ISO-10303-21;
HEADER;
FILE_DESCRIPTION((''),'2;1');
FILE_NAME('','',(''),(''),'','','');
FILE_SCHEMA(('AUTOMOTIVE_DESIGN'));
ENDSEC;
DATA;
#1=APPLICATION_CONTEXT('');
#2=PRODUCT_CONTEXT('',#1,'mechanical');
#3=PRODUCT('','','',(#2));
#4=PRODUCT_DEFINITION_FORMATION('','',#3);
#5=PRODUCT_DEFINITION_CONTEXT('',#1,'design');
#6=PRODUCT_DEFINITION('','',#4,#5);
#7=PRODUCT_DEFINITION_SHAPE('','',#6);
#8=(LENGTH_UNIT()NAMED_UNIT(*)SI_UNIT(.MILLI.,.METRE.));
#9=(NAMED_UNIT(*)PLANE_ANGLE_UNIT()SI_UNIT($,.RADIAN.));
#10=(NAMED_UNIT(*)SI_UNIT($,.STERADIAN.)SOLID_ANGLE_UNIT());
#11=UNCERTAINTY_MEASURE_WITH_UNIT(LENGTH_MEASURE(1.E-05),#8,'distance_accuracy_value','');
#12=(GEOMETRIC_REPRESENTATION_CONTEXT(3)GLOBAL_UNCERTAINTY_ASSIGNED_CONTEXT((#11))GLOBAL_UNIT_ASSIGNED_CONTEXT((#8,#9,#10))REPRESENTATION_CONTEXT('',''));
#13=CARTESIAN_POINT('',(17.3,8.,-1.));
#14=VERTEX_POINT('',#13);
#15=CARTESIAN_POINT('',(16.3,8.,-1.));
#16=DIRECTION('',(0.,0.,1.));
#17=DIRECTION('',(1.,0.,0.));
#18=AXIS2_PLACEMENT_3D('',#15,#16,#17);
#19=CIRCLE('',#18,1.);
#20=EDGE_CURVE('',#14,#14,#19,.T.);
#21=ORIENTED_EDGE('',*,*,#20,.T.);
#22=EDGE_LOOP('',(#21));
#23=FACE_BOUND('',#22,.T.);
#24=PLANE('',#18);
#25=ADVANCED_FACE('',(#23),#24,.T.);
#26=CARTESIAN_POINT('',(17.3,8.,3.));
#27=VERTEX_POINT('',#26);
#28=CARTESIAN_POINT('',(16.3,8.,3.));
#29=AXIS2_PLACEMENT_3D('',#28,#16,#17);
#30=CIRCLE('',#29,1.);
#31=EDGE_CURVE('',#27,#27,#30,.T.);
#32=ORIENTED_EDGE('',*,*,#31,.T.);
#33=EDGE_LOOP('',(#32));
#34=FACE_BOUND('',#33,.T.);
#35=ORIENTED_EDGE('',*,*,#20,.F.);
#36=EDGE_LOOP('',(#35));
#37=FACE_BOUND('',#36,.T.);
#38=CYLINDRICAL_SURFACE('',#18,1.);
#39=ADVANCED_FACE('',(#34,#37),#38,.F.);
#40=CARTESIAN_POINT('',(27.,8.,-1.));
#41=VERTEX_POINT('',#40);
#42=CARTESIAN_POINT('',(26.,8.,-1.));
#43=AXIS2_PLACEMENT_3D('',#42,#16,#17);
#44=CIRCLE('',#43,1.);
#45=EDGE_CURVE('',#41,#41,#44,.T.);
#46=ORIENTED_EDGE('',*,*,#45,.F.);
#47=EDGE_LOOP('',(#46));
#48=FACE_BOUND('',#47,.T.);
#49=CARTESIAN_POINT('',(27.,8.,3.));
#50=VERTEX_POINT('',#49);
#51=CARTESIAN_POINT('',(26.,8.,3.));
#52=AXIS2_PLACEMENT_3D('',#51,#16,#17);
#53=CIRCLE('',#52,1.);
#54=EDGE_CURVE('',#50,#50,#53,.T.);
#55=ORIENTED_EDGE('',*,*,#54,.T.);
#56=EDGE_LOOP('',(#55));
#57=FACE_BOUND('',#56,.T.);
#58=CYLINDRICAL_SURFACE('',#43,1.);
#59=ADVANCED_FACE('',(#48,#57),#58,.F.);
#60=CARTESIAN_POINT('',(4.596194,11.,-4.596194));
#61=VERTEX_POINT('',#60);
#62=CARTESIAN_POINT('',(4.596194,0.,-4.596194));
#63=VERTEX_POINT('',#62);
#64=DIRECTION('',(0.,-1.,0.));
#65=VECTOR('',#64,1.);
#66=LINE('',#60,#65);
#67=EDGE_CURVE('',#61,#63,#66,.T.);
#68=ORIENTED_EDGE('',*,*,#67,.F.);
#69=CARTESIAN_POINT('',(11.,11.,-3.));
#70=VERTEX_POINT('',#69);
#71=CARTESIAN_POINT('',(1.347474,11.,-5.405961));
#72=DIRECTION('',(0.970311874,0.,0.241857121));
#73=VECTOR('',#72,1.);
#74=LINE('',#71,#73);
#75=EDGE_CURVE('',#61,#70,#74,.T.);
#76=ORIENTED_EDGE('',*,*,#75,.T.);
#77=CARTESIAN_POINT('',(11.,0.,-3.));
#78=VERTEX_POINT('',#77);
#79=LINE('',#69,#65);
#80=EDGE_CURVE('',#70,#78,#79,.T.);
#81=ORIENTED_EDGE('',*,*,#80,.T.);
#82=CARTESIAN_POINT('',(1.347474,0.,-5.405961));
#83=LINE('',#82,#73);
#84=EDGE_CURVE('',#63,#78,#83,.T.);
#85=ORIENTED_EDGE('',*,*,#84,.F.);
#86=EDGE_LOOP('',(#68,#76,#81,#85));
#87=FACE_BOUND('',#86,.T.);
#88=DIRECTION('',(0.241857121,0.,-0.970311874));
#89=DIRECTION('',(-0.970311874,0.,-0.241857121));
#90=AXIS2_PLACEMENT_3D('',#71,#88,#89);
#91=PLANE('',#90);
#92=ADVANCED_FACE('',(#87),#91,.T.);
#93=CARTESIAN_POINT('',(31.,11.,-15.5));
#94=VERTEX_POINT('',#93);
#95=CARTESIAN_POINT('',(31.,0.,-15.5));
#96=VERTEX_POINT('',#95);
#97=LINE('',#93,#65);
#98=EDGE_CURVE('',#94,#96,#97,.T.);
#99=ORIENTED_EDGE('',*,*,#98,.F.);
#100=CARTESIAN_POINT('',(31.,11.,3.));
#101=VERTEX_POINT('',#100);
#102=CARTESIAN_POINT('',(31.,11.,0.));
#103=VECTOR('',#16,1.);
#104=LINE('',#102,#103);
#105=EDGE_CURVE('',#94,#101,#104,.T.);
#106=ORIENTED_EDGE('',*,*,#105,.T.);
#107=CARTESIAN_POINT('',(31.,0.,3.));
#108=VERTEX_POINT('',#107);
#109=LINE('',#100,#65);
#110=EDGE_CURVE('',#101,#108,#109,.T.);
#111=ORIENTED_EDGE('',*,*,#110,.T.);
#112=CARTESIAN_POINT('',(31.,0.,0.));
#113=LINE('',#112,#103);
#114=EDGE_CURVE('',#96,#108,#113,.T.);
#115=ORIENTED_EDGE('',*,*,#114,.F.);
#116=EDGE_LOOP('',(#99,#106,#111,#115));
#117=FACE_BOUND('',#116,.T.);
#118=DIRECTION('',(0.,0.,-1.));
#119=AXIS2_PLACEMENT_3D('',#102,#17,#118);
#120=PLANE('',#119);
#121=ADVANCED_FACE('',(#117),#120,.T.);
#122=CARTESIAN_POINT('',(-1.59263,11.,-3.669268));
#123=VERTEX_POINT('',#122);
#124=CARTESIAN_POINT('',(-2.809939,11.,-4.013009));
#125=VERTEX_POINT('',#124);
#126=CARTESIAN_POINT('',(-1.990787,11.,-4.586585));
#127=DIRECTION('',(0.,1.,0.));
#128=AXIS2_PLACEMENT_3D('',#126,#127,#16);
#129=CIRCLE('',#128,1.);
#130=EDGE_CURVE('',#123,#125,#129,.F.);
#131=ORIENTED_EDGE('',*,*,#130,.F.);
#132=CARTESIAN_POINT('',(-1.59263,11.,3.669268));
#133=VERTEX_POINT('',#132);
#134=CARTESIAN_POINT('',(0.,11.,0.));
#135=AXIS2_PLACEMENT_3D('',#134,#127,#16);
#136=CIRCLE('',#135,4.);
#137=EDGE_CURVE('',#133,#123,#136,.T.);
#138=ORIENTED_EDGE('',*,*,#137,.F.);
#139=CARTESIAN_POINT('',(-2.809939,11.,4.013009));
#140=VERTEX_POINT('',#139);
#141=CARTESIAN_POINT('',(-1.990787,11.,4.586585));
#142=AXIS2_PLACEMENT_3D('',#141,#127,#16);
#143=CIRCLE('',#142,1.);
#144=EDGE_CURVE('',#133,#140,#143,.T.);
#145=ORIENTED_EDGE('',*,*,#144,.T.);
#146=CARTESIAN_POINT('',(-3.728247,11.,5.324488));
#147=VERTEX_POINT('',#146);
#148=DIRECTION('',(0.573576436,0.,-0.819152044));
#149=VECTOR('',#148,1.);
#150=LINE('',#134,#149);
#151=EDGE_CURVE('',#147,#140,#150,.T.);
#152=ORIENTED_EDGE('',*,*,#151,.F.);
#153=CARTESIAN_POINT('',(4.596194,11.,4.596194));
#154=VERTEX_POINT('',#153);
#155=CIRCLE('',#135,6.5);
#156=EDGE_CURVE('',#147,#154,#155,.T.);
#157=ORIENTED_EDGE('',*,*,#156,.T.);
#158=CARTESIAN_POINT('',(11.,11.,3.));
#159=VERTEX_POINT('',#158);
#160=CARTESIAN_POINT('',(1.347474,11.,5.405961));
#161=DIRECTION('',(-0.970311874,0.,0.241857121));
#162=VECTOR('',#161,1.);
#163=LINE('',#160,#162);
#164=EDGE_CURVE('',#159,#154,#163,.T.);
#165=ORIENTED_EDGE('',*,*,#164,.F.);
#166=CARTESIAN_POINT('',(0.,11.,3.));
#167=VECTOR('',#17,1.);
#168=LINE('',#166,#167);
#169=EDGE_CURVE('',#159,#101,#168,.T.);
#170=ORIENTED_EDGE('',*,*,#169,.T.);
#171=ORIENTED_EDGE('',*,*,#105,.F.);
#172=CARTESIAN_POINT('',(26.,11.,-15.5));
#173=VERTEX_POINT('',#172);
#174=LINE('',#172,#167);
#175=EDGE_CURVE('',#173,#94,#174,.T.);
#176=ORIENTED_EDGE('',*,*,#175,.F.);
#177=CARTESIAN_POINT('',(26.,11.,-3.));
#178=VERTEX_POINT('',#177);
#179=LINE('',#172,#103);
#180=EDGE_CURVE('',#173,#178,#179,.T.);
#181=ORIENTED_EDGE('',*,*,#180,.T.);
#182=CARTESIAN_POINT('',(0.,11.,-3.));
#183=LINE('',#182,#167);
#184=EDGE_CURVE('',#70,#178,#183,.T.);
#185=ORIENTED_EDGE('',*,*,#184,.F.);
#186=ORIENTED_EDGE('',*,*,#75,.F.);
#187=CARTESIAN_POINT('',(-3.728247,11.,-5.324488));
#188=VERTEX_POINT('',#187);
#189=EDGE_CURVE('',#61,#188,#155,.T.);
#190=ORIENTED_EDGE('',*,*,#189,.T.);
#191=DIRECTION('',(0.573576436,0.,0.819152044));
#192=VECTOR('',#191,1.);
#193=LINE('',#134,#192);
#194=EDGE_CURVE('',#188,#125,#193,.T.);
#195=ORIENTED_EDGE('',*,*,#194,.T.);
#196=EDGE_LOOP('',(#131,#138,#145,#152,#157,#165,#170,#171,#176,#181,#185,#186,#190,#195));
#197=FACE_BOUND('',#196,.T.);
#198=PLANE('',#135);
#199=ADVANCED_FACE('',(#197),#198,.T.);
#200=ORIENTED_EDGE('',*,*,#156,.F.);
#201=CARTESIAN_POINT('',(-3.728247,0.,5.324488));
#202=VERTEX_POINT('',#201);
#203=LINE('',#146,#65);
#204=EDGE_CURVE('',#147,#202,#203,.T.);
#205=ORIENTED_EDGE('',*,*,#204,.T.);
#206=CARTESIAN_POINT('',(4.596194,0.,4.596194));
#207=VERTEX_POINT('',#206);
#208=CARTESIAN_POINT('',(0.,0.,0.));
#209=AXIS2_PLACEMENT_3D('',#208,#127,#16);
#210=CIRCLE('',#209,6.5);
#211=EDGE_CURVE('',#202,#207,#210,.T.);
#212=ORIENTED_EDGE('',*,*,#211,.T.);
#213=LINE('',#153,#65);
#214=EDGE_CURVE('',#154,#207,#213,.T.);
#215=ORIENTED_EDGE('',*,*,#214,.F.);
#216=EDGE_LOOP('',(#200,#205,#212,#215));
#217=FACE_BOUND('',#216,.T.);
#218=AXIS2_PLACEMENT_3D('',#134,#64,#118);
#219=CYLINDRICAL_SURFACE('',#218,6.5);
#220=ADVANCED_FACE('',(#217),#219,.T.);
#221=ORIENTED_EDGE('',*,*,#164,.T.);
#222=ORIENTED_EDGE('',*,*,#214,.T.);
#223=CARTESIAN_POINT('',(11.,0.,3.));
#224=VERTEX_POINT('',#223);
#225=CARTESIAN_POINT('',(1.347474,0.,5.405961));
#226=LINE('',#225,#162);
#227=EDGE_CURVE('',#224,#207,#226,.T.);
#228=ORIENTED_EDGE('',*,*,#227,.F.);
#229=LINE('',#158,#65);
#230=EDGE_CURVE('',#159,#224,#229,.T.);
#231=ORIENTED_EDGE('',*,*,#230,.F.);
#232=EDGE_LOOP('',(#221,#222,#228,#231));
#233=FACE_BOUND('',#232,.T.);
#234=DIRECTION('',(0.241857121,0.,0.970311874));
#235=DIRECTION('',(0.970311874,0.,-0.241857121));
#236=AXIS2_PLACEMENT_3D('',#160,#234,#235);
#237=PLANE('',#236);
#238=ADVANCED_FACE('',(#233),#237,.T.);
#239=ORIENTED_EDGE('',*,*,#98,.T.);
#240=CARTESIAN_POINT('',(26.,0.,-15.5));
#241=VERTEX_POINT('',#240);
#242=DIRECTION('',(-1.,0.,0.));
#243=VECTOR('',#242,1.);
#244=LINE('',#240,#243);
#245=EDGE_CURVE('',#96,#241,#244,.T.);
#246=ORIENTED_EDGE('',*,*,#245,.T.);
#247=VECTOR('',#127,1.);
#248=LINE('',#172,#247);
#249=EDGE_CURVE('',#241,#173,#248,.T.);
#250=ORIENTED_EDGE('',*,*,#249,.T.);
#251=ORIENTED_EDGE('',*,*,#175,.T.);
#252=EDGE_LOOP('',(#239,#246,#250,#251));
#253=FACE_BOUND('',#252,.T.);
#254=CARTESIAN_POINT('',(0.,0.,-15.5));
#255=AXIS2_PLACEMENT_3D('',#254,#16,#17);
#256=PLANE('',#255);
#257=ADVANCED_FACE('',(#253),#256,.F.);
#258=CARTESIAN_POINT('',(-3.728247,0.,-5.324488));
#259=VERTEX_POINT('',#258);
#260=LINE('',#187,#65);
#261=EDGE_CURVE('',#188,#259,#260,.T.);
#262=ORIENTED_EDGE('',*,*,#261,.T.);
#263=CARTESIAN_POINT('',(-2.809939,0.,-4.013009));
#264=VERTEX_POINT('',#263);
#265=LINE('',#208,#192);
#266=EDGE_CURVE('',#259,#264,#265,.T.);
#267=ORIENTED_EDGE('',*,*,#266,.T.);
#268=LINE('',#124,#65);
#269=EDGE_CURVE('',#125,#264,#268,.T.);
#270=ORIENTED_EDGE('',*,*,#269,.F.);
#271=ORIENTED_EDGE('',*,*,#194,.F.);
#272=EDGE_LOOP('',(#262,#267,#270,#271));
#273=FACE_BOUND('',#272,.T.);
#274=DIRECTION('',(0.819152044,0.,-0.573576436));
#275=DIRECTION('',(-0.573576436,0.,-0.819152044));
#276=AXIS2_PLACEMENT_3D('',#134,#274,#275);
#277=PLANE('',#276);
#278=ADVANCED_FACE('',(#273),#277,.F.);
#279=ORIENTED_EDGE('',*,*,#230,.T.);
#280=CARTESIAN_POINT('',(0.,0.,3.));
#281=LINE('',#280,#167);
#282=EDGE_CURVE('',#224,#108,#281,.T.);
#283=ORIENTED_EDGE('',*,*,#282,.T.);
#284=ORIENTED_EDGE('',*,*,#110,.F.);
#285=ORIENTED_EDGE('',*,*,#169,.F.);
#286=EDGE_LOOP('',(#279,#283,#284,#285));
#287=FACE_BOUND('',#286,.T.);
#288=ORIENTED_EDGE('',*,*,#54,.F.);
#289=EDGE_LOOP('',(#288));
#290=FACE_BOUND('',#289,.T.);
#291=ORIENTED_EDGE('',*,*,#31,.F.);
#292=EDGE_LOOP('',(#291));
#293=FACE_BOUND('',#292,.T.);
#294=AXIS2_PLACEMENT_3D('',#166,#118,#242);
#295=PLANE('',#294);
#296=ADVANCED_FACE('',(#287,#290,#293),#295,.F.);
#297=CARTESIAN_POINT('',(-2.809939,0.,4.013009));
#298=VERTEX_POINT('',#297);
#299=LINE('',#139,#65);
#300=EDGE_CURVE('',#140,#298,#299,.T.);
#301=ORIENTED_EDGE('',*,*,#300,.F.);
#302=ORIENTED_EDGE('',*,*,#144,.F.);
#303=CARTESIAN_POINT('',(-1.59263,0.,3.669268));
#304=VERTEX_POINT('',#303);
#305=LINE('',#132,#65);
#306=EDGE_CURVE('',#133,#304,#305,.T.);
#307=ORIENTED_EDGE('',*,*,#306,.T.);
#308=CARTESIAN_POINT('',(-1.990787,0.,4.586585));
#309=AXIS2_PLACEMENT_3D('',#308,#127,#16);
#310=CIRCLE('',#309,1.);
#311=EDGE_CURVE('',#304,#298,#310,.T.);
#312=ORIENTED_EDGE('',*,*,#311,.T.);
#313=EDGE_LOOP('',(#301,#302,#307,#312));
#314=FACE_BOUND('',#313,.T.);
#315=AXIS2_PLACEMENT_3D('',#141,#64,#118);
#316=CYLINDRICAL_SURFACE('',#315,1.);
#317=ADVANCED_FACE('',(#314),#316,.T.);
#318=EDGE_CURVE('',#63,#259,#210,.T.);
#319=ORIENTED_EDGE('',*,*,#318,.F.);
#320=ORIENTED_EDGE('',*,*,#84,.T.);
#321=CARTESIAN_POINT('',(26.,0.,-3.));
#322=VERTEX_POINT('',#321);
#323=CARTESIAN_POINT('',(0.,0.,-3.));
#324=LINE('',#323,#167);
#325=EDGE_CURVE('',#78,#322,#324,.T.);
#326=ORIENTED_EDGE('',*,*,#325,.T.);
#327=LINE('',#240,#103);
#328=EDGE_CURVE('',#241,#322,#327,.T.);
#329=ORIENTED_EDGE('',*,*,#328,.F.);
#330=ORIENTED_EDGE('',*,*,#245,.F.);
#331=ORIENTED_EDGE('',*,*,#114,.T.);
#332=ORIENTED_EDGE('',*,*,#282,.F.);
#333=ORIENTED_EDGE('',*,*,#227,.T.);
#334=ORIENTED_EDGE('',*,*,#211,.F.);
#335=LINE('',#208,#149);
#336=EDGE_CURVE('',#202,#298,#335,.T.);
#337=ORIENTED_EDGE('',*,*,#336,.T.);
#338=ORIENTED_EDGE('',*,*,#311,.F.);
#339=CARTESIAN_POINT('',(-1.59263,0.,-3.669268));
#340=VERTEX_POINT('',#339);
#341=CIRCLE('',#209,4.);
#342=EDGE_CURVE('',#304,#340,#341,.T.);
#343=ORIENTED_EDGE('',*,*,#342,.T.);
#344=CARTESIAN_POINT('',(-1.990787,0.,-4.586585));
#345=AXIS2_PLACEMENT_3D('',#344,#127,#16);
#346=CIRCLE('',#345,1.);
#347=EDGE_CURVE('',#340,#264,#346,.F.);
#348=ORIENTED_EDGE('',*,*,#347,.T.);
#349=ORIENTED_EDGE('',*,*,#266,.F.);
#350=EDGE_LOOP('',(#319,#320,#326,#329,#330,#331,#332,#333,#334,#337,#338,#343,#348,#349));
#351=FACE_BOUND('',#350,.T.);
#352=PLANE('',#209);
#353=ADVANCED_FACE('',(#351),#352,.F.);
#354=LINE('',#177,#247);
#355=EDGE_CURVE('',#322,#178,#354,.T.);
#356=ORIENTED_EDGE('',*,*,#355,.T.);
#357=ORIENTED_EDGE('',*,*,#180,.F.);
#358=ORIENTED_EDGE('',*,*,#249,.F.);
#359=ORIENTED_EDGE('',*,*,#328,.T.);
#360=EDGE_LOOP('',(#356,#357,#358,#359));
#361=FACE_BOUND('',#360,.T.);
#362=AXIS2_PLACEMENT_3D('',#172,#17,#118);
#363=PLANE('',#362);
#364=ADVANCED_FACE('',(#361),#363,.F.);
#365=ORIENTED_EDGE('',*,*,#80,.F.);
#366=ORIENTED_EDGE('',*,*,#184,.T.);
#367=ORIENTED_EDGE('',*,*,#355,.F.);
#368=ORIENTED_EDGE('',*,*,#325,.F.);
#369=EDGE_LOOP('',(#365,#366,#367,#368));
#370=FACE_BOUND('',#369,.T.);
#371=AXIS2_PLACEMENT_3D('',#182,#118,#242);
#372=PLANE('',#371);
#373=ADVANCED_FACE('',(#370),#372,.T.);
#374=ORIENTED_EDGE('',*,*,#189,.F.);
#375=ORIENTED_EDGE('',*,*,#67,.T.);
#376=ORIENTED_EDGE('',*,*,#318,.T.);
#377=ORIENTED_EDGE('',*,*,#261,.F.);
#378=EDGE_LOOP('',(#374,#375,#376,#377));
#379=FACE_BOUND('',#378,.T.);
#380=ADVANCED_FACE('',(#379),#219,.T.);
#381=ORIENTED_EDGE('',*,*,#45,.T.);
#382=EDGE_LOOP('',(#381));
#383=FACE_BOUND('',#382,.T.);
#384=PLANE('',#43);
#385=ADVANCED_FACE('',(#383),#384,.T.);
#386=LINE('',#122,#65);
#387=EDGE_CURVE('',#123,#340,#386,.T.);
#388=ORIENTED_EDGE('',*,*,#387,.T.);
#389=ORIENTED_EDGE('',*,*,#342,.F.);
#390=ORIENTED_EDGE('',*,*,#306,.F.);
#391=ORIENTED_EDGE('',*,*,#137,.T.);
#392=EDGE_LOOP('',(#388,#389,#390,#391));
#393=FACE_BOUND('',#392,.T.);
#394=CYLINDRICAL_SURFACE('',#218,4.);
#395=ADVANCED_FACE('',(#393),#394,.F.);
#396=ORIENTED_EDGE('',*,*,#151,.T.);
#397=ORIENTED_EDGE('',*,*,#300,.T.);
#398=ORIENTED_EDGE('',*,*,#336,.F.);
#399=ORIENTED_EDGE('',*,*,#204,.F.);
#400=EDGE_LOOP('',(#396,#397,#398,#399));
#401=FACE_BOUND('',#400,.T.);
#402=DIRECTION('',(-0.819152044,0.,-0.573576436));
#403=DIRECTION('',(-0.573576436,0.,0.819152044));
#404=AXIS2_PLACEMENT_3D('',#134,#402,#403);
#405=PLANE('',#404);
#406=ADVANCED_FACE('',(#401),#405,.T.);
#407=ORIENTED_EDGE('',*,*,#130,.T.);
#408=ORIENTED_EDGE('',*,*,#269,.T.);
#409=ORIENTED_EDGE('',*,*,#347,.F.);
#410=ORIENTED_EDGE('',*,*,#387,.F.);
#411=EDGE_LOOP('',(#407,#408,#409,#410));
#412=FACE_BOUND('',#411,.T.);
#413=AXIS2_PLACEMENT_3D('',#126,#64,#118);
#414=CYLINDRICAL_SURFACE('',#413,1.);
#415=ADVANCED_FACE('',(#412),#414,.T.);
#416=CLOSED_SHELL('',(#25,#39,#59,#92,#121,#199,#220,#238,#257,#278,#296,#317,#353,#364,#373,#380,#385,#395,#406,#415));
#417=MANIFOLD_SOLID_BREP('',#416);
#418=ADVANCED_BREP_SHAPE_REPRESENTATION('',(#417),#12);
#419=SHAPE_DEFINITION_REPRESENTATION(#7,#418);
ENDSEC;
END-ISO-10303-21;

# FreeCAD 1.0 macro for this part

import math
import FreeCAD as App
import Part
import Sketcher
from FreeCAD import Vector
Q = App.Units.Quantity


def add_polygon(sketch, points):
    """Adds a closed chain of lines whose ends are joined by coincident constraints."""
    first, n = sketch.GeometryCount, len(points)
    for a, b in zip(points, points[1:] + points[:1]):
        sketch.addGeometry(Part.LineSegment(App.Vector(*a, 0), App.Vector(*b, 0)), False)
    for i in range(n):
        sketch.addConstraint(Sketcher.Constraint("Coincident", first + i, 2, first + (i + 1) % n, 1))

doc = App.newDocument("Part")
body = doc.addObject("PartDesign::Body", "Body")

# Sketch on XZ plane
sketch1 = body.newObject("Sketcher::SketchObject", "Sketch")
sketch1.AttachmentSupport = (doc.getObject("XZ_Plane"), [""])
sketch1.MapMode = "FlatFace"
sketch1.addGeometry(Part.LineSegment(Vector(11, 3, 0), Vector(31, 3, 0)), False)
sketch1.addGeometry(Part.LineSegment(Vector(31, 3, 0), Vector(31, -3, 0)), False)
sketch1.addGeometry(Part.LineSegment(Vector(31, -3, 0), Vector(11, -3, 0)), False)
sketch1.addGeometry(Part.LineSegment(Vector(11, -3, 0), Vector(4.6, -4.6, 0)), False)
sketch1.addGeometry(Part.ArcOfCircle(Part.Circle(Vector(0, 0, 0), Vector(0, 0, 1), 6.5), math.radians(-125), math.radians(-45)), False)
sketch1.addGeometry(Part.LineSegment(Vector(-3.7, -5.3, 0), Vector(-2.8, -4, 0)), False)
sketch1.addGeometry(Part.ArcOfCircle(Part.Circle(Vector(-2, -4.6, 0), Vector(0, 0, 1), 1), math.radians(67), math.radians(145)), False)
sketch1.addGeometry(Part.ArcOfCircle(Part.Circle(Vector(0, 0, 0), Vector(0, 0, 1), 4), math.radians(-113), math.radians(113)), False)
sketch1.addGeometry(Part.ArcOfCircle(Part.Circle(Vector(-2, 4.6, 0), Vector(0, 0, 1), 1), math.radians(-145), math.radians(-67)), False)
sketch1.addGeometry(Part.LineSegment(Vector(-2.8, 4, 0), Vector(-3.7, 5.3, 0)), False)
sketch1.addGeometry(Part.ArcOfCircle(Part.Circle(Vector(0, 0, 0), Vector(0, 0, 1), 6.5), math.radians(45), math.radians(125)), False)
sketch1.addGeometry(Part.LineSegment(Vector(4.6, 4.6, 0), Vector(11, 3, 0)), False)
sketch1.addConstraint(Sketcher.Constraint("Coincident", 0, 2, 1, 1))
sketch1.addConstraint(Sketcher.Constraint("Coincident", 1, 2, 2, 1))
sketch1.addConstraint(Sketcher.Constraint("Coincident", 2, 2, 3, 1))
sketch1.addConstraint(Sketcher.Constraint("Coincident", 3, 2, 4, 2))
sketch1.addConstraint(Sketcher.Constraint("Coincident", 4, 1, 5, 1))
sketch1.addConstraint(Sketcher.Constraint("Tangent", 5, 2, 6, 2))
sketch1.addConstraint(Sketcher.Constraint("Tangent", 6, 1, 7, 1))
sketch1.addConstraint(Sketcher.Constraint("Tangent", 7, 2, 8, 2))
sketch1.addConstraint(Sketcher.Constraint("Tangent", 8, 1, 9, 1))
sketch1.addConstraint(Sketcher.Constraint("Coincident", 9, 2, 10, 2))
sketch1.addConstraint(Sketcher.Constraint("Coincident", 10, 1, 11, 1))
sketch1.addConstraint(Sketcher.Constraint("Coincident", 11, 2, 0, 1))
sketch1.addConstraint(Sketcher.Constraint("Horizontal", 0))
sketch1.addConstraint(Sketcher.Constraint("Vertical", 1))
sketch1.addConstraint(Sketcher.Constraint("Horizontal", 2))
sketch1.addConstraint(Sketcher.Constraint("Coincident", 4, 3, -1, 1))
sketch1.addConstraint(Sketcher.Constraint("Coincident", 7, 3, -1, 1))
sketch1.addConstraint(Sketcher.Constraint("Coincident", 10, 3, -1, 1))
sketch1.addConstraint(Sketcher.Constraint("Equal", 6, 8))
sketch1.addConstraint(Sketcher.Constraint("Equal", 4, 10))
sketch1.addConstraint(Sketcher.Constraint("Symmetric", 5, 2, 8, 1, -1))
sketch1.addConstraint(Sketcher.Constraint("Symmetric", 2, 2, 11, 2, -1))
sketch1.addConstraint(Sketcher.Constraint("Vertical", 3, 2, 10, 1))
sketch1.addConstraint(Sketcher.Constraint("Radius", 6, Q("1 mm")))
sketch1.addConstraint(Sketcher.Constraint("Radius", 7, Q("4 mm")))
sketch1.addConstraint(Sketcher.Constraint("Radius", 4, Q("6.5 mm")))
sketch1.addConstraint(Sketcher.Constraint("DistanceX", 0, 1, 0, 2, Q("20 mm")))
sketch1.addConstraint(Sketcher.Constraint("DistanceY", 1, 2, 1, 1, Q("6 mm")))
sketch1.addConstraint(Sketcher.Constraint("Angle", 5, Q("55 deg")))
sketch1.addConstraint(Sketcher.Constraint("DistanceX", -1, 1, 0, 2, Q("31 mm")))
sketch1.addConstraint(Sketcher.Constraint("Distance", 3, Q("6.59974 mm")))
sketch1.addConstraint(Sketcher.Constraint("Distance", 5, Q("1.601021 mm")))
pad1 = body.newObject("PartDesign::Pad", "Pad")
pad1.Profile = sketch1
pad1.Length = 11
pad1.Reversed = True

# Sketch on XY plane
sketch2 = body.newObject("Sketcher::SketchObject", "Sketch001")
sketch2.AttachmentSupport = (doc.getObject("XY_Plane"), [""])
sketch2.MapMode = "FlatFace"
sketch2.AttachmentOffset = App.Placement(Vector(0, 0, 3), App.Rotation())
sketch2.addGeometry(Part.Circle(Vector(16.3, 8, 0), Vector(0, 0, 1), 1), False)
sketch2.addGeometry(Part.Circle(Vector(26, 8, 0), Vector(0, 0, 1), 1), False)
sketch2.addConstraint(Sketcher.Constraint("Equal", 0, 1))
sketch2.addConstraint(Sketcher.Constraint("Horizontal", 0, 3, 1, 3))
sketch2.addConstraint(Sketcher.Constraint("Diameter", 0, Q("2 mm")))
sketch2.addConstraint(Sketcher.Constraint("DistanceY", -1, 1, 0, 3, Q("8 mm")))
sketch2.addConstraint(Sketcher.Constraint("DistanceX", -1, 1, 1, 3, Q("26 mm")))
sketch2.addConstraint(Sketcher.Constraint("DistanceX", -1, 1, 0, 3, Q("16.3 mm")))
pocket1 = body.newObject("PartDesign::Pocket", "Pocket")
pocket1.Profile = sketch2
pocket1.Length = 4

# Sketch on XY plane
sketch3 = body.newObject("Sketcher::SketchObject", "Sketch002")
sketch3.AttachmentSupport = (doc.getObject("XY_Plane"), [""])
sketch3.MapMode = "FlatFace"
sketch3.AttachmentOffset = App.Placement(Vector(0, 0, -3), App.Rotation())
add_polygon(sketch3, [(31, 11), (31, 0), (26, 0), (26, 11)])  # lines 0-3
sketch3.addConstraint(Sketcher.Constraint("Vertical", 0))
sketch3.addConstraint(Sketcher.Constraint("Horizontal", 1))
sketch3.addConstraint(Sketcher.Constraint("Vertical", 2))
sketch3.addConstraint(Sketcher.Constraint("Horizontal", 3))
sketch3.addConstraint(Sketcher.Constraint("PointOnObject", 0, 2, -1))
sketch3.addConstraint(Sketcher.Constraint("DistanceX", 1, 2, 1, 1, Q("5 mm")))
sketch3.addConstraint(Sketcher.Constraint("DistanceY", 0, 2, 0, 1, Q("11 mm")))
sketch3.addConstraint(Sketcher.Constraint("DistanceX", -1, 1, 0, 2, Q("31 mm")))
pad2 = body.newObject("PartDesign::Pad", "Pad001")
pad2.Profile = sketch3
pad2.Length = 12.5
pad2.Reversed = True

doc.recompute()
